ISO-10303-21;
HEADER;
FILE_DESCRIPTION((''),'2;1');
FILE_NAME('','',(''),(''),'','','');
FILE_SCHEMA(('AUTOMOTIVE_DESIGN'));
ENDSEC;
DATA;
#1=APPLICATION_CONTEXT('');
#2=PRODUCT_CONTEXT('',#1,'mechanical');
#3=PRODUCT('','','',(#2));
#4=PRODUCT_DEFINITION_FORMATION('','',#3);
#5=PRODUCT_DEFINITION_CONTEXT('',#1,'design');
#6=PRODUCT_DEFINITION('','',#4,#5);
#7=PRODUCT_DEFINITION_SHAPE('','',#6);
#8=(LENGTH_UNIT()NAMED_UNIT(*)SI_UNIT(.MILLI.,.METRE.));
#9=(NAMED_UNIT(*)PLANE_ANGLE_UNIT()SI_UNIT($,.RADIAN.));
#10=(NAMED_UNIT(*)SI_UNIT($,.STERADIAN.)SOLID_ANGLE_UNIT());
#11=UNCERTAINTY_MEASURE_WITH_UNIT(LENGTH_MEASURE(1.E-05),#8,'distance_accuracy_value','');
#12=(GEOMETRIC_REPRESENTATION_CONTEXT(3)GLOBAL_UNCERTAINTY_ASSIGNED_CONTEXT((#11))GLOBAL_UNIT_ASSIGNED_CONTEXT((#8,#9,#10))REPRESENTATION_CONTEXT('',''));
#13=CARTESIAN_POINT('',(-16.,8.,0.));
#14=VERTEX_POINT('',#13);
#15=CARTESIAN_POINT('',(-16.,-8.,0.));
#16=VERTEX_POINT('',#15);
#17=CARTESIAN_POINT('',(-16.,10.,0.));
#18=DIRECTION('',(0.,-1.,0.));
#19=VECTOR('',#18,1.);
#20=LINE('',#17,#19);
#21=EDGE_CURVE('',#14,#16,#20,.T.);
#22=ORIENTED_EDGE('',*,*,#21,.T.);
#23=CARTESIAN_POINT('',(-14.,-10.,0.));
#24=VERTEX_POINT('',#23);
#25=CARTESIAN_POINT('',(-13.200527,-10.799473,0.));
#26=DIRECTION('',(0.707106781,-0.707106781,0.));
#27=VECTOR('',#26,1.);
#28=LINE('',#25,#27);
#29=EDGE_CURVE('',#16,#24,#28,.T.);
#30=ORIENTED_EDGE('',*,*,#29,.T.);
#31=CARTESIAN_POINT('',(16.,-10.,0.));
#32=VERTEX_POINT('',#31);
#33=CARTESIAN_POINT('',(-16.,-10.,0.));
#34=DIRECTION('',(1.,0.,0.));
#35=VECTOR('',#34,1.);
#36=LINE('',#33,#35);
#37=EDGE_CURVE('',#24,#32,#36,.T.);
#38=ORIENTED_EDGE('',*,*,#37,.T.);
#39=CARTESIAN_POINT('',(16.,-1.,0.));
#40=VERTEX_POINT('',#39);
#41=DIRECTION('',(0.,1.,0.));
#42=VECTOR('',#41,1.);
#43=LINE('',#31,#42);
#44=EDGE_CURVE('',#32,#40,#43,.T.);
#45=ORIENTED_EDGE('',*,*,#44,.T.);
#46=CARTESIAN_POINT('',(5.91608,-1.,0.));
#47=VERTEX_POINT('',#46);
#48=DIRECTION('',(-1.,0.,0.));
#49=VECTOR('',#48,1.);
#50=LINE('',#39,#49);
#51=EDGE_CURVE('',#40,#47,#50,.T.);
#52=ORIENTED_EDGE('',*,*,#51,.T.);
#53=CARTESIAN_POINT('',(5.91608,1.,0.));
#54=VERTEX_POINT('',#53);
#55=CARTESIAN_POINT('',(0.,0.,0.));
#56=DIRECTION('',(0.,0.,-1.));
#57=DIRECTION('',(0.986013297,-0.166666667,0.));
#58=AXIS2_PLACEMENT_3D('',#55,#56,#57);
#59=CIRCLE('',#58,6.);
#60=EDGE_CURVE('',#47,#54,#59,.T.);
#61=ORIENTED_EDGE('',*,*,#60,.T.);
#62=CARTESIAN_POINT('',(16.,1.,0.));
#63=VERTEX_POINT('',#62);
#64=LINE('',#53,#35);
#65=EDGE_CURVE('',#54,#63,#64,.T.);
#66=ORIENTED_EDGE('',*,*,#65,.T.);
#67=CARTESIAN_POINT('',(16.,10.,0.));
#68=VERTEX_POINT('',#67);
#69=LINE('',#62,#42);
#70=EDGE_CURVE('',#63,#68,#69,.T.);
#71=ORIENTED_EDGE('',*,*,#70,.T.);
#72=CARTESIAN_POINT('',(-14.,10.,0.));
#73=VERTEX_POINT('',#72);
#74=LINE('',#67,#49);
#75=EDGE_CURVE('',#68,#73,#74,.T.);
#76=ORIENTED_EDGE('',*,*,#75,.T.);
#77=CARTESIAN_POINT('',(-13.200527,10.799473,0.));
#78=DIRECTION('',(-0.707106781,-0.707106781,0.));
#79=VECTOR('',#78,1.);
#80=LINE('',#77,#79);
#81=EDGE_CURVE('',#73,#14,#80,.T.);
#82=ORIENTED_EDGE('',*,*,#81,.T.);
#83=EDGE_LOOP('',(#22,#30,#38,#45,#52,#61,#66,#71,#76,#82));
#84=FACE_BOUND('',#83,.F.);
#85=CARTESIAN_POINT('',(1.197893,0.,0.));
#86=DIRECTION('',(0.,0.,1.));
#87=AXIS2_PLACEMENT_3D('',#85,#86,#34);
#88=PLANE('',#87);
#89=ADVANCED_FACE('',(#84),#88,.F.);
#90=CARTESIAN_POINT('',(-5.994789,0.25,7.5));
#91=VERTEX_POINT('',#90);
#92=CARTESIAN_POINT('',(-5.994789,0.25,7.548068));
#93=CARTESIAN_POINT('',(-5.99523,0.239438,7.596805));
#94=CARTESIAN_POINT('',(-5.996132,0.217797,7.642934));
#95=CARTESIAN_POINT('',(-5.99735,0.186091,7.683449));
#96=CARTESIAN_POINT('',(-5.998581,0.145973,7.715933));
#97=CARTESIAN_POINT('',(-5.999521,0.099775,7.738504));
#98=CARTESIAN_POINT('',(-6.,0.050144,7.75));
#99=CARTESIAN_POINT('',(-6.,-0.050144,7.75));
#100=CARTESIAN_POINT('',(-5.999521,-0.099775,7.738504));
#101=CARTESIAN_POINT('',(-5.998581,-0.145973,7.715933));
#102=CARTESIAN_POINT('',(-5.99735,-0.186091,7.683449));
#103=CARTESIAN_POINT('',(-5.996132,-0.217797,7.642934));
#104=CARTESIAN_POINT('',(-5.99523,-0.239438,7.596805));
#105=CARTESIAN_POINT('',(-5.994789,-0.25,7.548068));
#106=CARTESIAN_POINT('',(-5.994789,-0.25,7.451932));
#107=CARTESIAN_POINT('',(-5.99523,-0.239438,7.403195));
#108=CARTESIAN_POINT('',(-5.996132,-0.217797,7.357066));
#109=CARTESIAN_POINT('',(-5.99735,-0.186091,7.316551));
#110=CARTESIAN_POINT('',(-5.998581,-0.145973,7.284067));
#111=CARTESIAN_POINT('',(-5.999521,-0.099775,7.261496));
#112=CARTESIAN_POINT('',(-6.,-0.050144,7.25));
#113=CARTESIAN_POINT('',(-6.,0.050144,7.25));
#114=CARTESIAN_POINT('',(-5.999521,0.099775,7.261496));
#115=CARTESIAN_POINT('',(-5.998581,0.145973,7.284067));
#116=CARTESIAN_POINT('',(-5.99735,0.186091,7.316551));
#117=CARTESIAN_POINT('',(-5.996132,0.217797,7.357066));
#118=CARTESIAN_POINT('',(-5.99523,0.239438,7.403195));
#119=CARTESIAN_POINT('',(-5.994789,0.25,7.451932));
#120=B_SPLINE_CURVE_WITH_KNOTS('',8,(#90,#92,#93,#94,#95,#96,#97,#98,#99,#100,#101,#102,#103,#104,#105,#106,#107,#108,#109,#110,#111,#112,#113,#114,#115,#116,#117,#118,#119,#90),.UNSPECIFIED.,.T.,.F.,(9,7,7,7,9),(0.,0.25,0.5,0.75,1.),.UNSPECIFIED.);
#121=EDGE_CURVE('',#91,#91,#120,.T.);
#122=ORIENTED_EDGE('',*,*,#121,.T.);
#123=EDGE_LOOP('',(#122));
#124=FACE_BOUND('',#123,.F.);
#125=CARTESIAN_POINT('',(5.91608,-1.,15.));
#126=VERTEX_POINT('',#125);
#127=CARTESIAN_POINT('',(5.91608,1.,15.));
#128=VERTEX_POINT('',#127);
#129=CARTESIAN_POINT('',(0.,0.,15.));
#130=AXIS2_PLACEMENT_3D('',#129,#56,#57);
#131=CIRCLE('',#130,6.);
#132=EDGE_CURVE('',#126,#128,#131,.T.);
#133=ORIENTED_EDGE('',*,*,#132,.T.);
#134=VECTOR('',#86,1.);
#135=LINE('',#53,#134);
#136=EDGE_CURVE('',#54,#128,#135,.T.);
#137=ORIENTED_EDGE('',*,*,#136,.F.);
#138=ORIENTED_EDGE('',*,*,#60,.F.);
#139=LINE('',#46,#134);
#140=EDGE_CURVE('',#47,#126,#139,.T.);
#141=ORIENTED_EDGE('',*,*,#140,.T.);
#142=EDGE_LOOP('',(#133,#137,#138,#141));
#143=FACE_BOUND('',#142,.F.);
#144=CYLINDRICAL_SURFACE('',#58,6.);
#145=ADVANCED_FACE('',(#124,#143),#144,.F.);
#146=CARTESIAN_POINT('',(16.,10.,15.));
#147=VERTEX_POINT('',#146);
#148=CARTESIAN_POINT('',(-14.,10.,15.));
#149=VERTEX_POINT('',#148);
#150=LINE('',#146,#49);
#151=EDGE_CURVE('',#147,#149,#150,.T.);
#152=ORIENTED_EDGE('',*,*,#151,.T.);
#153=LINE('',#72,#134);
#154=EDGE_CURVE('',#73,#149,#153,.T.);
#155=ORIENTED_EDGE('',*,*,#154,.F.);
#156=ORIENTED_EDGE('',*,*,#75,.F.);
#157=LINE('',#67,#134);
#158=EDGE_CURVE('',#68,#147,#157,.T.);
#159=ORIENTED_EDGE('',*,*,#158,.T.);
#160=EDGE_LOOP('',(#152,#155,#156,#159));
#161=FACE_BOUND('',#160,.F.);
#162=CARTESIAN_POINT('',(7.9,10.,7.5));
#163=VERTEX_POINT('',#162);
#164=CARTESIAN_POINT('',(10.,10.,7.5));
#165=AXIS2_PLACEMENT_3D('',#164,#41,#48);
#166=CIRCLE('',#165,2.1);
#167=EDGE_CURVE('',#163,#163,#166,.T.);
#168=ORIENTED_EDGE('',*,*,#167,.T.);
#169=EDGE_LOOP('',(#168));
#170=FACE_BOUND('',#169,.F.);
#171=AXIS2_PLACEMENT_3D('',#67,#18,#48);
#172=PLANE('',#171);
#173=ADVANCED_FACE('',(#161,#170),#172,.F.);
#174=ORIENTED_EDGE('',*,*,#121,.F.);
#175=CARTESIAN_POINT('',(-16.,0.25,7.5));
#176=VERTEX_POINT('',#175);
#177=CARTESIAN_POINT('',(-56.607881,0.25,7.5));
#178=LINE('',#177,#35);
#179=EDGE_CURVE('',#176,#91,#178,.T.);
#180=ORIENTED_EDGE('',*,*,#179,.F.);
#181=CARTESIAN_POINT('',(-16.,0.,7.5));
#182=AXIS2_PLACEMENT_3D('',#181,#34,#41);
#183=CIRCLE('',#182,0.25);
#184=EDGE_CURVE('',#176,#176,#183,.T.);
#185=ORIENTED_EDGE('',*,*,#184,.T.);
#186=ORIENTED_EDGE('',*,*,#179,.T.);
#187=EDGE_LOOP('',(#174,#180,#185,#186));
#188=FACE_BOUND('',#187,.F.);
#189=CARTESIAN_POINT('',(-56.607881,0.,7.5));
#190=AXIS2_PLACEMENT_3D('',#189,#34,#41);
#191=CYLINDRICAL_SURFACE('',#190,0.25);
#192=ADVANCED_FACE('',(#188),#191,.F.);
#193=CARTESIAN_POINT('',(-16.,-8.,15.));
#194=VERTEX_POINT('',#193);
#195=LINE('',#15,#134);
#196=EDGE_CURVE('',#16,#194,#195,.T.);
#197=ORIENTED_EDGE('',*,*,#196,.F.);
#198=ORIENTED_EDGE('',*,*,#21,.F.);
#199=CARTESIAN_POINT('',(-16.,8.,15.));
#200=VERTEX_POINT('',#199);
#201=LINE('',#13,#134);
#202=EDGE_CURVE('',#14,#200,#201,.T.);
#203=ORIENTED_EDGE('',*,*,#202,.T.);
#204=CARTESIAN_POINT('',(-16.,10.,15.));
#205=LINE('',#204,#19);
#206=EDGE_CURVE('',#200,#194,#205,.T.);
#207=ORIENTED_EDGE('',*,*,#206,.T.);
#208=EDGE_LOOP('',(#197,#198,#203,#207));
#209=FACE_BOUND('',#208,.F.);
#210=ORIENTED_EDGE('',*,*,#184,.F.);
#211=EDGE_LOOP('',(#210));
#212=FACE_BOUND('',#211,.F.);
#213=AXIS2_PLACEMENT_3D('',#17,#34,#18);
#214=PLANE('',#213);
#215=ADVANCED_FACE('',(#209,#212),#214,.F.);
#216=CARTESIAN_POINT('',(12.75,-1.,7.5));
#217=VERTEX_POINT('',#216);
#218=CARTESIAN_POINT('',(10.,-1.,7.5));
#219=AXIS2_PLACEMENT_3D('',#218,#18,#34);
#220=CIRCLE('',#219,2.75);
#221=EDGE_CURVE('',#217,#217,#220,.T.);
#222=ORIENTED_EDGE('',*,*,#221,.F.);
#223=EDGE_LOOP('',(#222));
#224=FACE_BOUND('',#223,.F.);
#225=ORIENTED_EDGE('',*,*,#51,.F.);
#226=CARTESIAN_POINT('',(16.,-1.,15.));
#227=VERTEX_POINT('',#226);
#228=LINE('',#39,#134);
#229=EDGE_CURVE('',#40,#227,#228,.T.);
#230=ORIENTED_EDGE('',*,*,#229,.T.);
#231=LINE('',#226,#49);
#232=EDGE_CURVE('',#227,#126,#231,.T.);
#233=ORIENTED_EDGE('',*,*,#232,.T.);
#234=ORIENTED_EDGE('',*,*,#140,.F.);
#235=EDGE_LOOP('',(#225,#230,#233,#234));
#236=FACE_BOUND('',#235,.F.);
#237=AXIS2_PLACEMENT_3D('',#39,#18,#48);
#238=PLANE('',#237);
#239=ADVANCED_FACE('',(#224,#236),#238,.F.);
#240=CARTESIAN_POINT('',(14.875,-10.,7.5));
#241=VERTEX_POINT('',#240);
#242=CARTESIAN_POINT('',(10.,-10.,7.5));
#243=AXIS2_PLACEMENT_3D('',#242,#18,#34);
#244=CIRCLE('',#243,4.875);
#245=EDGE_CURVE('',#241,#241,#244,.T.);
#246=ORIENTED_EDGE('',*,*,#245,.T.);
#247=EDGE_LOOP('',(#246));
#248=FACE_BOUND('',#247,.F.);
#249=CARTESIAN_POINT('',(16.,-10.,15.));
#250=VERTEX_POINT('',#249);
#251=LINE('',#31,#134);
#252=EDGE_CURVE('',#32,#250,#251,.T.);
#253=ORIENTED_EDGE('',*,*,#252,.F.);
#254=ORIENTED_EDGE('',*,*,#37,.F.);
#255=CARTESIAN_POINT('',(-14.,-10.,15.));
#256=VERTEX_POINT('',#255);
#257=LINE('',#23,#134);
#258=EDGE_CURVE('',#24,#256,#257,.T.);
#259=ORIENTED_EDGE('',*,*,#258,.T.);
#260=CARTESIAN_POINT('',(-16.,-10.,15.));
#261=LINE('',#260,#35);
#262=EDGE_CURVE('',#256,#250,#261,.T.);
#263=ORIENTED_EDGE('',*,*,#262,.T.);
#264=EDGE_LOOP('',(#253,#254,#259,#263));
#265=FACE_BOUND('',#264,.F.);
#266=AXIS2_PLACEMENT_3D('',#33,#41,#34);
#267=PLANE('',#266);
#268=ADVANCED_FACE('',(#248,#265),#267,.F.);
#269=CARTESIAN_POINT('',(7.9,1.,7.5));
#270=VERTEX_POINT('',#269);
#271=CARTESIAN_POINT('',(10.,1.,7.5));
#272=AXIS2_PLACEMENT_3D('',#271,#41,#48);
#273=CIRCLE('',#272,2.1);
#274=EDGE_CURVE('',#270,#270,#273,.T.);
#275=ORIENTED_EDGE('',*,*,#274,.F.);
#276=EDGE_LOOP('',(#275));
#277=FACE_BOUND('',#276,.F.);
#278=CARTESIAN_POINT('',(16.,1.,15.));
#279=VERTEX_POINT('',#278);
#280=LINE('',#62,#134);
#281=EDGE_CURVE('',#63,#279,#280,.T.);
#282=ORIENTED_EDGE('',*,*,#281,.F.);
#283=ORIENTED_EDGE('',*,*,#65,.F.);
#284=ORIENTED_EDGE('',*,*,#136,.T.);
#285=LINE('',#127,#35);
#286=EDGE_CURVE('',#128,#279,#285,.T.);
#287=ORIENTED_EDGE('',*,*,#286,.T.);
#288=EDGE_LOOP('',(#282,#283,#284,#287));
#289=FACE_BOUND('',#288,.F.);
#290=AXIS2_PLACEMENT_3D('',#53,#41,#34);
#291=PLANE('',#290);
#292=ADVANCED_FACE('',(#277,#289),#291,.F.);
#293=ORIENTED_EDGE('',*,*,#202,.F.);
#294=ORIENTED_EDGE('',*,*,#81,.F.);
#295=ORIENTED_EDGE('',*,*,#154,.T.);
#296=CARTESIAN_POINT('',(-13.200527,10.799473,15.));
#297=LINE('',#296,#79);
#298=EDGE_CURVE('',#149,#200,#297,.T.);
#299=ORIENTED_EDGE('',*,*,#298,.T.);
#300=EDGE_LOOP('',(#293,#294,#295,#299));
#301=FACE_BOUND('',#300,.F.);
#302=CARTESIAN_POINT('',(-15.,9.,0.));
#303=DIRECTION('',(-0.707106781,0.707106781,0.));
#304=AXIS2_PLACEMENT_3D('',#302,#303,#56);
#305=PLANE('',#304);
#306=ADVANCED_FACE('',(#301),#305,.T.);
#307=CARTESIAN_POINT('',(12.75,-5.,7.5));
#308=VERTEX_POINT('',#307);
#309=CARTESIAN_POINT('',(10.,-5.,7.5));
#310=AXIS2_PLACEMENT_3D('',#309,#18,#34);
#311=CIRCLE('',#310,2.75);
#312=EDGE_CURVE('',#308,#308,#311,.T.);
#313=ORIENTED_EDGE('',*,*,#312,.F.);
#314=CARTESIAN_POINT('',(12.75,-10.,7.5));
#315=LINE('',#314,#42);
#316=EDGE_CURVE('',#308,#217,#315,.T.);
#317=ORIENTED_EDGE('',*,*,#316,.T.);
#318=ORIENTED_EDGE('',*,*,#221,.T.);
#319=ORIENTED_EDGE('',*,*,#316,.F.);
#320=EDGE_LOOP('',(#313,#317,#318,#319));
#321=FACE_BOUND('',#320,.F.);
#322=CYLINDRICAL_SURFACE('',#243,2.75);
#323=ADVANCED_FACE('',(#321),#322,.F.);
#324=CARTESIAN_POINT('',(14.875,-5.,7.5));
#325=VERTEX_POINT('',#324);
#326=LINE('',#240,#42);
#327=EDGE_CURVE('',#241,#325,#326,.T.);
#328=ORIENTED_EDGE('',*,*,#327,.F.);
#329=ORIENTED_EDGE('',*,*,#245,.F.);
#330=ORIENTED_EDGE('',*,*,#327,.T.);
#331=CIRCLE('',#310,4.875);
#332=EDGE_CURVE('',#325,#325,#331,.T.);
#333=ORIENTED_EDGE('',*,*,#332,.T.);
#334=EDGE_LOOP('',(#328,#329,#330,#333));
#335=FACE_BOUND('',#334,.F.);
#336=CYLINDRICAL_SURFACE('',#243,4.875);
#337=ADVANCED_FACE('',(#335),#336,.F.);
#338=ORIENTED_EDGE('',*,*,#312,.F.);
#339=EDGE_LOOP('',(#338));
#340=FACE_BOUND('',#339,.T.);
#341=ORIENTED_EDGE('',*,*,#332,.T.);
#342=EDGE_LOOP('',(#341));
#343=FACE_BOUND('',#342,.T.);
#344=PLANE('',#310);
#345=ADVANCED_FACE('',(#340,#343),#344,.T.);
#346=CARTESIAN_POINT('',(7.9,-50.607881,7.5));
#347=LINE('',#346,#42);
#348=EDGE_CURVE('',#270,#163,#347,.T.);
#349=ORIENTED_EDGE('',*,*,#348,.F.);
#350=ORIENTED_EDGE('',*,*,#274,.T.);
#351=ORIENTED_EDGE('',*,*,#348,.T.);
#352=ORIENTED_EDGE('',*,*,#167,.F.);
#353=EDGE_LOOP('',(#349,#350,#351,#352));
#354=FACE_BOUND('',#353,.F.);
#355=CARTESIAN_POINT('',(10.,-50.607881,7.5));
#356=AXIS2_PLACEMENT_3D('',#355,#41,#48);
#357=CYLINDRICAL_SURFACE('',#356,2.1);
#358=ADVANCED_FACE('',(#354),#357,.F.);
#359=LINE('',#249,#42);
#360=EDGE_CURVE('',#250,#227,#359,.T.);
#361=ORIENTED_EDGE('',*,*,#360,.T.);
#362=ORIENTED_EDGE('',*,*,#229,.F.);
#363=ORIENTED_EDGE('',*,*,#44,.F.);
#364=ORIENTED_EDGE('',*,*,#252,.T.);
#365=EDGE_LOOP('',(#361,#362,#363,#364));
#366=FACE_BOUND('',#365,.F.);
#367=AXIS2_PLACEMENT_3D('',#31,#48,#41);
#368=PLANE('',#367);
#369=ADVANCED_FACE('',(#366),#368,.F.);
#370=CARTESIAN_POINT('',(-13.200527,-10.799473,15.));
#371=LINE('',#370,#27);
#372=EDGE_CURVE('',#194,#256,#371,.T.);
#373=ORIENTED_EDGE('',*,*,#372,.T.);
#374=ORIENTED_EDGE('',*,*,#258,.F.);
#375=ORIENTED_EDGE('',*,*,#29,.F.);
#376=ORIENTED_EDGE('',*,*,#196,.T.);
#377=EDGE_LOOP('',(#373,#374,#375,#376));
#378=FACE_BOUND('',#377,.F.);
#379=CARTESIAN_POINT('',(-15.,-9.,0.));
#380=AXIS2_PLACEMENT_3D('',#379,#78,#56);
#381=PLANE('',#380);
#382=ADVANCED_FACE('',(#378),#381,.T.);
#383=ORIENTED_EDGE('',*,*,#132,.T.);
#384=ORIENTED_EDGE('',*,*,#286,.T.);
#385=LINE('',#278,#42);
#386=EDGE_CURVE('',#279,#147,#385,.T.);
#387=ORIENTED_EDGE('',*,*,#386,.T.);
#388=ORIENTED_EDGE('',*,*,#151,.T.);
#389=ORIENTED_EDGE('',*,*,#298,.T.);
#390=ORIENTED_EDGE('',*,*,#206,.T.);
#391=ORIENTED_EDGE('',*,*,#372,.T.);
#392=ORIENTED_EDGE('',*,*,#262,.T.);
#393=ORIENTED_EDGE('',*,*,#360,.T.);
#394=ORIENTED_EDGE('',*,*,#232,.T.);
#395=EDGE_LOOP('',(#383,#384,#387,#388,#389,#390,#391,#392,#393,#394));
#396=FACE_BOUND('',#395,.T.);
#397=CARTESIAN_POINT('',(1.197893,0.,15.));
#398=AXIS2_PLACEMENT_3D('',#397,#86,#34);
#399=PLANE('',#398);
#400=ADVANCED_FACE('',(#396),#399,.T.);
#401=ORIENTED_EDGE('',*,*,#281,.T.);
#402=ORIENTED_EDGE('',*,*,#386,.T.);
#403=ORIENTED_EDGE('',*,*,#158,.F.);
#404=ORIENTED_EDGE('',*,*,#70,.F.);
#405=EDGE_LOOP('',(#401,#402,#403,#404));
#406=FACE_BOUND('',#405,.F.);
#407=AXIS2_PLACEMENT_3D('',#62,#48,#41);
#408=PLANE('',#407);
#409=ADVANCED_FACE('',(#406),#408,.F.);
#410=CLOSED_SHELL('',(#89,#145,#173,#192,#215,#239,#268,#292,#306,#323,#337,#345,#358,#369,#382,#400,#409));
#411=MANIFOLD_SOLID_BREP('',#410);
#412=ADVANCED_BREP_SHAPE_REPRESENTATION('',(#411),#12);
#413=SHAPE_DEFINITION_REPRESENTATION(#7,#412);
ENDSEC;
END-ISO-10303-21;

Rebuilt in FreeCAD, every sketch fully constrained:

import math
import FreeCAD as App
import Part
import Sketcher


def edges_at(feature, points):
    """Names of the edges that pass closest to the given points."""
    edges = feature.Shape.Edges
    near = lambda p: min(range(len(edges)), key=lambda i: edges[i].distToShape(Part.Vertex(*p))[0])
    return sorted({f"Edge{near(p) + 1}" for p in points})

doc = App.newDocument("Part")
body = doc.addObject("PartDesign::Body", "Body")

# Sketch on XY plane
sketch1 = body.newObject("Sketcher::SketchObject", "Sketch")
sketch1.AttachmentSupport = (doc.getObject("XY_Plane"), [""])
sketch1.MapMode = "FlatFace"
sketch1.addGeometry([
    Part.ArcOfCircle(Part.Circle(App.Vector(0, 0, 0), App.Vector(0, 0, 1), 6), math.radians(10), math.radians(350)),  # 0
    Part.LineSegment(App.Vector(5.9, 1, 0), App.Vector(16, 1, 0)),  # 1
    Part.LineSegment(App.Vector(16, 1, 0), App.Vector(16, 10, 0)),  # 2
    Part.LineSegment(App.Vector(16, 10, 0), App.Vector(-16, 10, 0)),  # 3
    Part.LineSegment(App.Vector(-16, 10, 0), App.Vector(-16, -10, 0)),  # 4
    Part.LineSegment(App.Vector(-16, -10, 0), App.Vector(16, -10, 0)),  # 5
    Part.LineSegment(App.Vector(16, -10, 0), App.Vector(16, -1, 0)),  # 6
    Part.LineSegment(App.Vector(16, -1, 0), App.Vector(5.9, -1, 0)),  # 7
], False)
sketch1.addConstraint([
    Sketcher.Constraint("Coincident", 0, 1, 1, 1),
    Sketcher.Constraint("Coincident", 1, 2, 2, 1),
    Sketcher.Constraint("Coincident", 2, 2, 3, 1),
    Sketcher.Constraint("Coincident", 3, 2, 4, 1),
    Sketcher.Constraint("Coincident", 4, 2, 5, 1),
    Sketcher.Constraint("Coincident", 5, 2, 6, 1),
    Sketcher.Constraint("Coincident", 6, 2, 7, 1),
    Sketcher.Constraint("Coincident", 7, 2, 0, 2),
    Sketcher.Constraint("Horizontal", 1),
    Sketcher.Constraint("Vertical", 2),
    Sketcher.Constraint("Horizontal", 3),
    Sketcher.Constraint("Vertical", 4),
    Sketcher.Constraint("Horizontal", 5),
    Sketcher.Constraint("Vertical", 6),
    Sketcher.Constraint("Horizontal", 7),
    Sketcher.Constraint("Coincident", 0, 3, -1, 1),
    Sketcher.Constraint("Symmetric", 2, 2, 4, 2, -1, 1),
    Sketcher.Constraint("Symmetric", 1, 2, 6, 2, -1),
    Sketcher.Constraint("Radius", 0, 6.0),
    Sketcher.Constraint("DistanceX", 3, 2, 3, 1, 32.0),
    Sketcher.Constraint("DistanceY", 2, 1, 2, 2, 9.0),
    Sketcher.Constraint("DistanceY", 4, 2, 4, 1, 20.0),
])
pad1 = body.newObject("PartDesign::Pad", "Pad")
pad1.Profile = sketch1
pad1.Length = 15
doc.recompute()

chamfer = body.newObject("PartDesign::Chamfer", "Chamfer")
chamfer.Base = (pad1, edges_at(pad1, [(-16, 10, 7.5), (-16, -10, 7.5)]))
chamfer.ChamferType = "Two distances"
chamfer.Size = 2
chamfer.Size2 = 2

# Sketch on XZ plane
sketch2 = body.newObject("Sketcher::SketchObject", "Sketch001")
sketch2.AttachmentSupport = (doc.getObject("XZ_Plane"), [""])
sketch2.MapMode = "FlatFace"
sketch2.AttachmentOffset = App.Placement(App.Vector(0, 0, 10), App.Rotation())
sketch2.addGeometry(Part.Circle(App.Vector(10, 7.5, 0), App.Vector(0, 0, 1), 2.8), False)
sketch2.addConstraint([
    Sketcher.Constraint("Diameter", 0, 5.5),
    Sketcher.Constraint("DistanceX", -1, 1, 0, 3, 10.0),
    Sketcher.Constraint("DistanceY", -1, 1, 0, 3, 7.5),
])
pocket1 = body.newObject("PartDesign::Pocket", "Pocket")
pocket1.Profile = sketch2
pocket1.Length = 10

# Sketch on XZ plane
sketch3 = body.newObject("Sketcher::SketchObject", "Sketch002")
sketch3.AttachmentSupport = (doc.getObject("XZ_Plane"), [""])
sketch3.MapMode = "FlatFace"
sketch3.AttachmentOffset = App.Placement(App.Vector(0, 0, 10), App.Rotation())
sketch3.addGeometry(Part.Circle(App.Vector(10, 7.5, 0), App.Vector(0, 0, 1), 2.1), False)
sketch3.addConstraint([
    Sketcher.Constraint("Diameter", 0, 4.2),
    Sketcher.Constraint("DistanceX", -1, 1, 0, 3, 10.0),
    Sketcher.Constraint("DistanceY", -1, 1, 0, 3, 7.5),
])
doc.recompute()
hole = body.newObject("PartDesign::Hole", "Hole")
hole.Profile = sketch3
hole.ThreadType = "None"
hole.Diameter = 4.2
hole.DepthType = "ThroughAll"

# Sketch on XZ plane
sketch4 = body.newObject("Sketcher::SketchObject", "Sketch003")
sketch4.AttachmentSupport = (doc.getObject("XZ_Plane"), [""])
sketch4.MapMode = "FlatFace"
sketch4.AttachmentOffset = App.Placement(App.Vector(0, 0, 10), App.Rotation())
sketch4.addGeometry([
    Part.Circle(App.Vector(10, 7.5, 0), App.Vector(0, 0, 1), 4.9),
    Part.Circle(App.Vector(10, 7.5, 0), App.Vector(0, 0, 1), 2.8),
], False)
sketch4.addConstraint([
    Sketcher.Constraint("Coincident", 1, 3, 0, 3),
    Sketcher.Constraint("Diameter", 1, 5.5),
    Sketcher.Constraint("Diameter", 0, 9.75),
    Sketcher.Constraint("DistanceX", -1, 1, 0, 3, 10.0),
    Sketcher.Constraint("DistanceY", -1, 1, 0, 3, 7.5),
])
pocket2 = body.newObject("PartDesign::Pocket", "Pocket001")
pocket2.Profile = sketch4
pocket2.Length = 5

# Sketch on YZ plane
sketch5 = body.newObject("Sketcher::SketchObject", "Sketch004")
sketch5.AttachmentSupport = (doc.getObject("YZ_Plane"), [""])
sketch5.MapMode = "FlatFace"
sketch5.AttachmentOffset = App.Placement(App.Vector(0, 0, -16), App.Rotation())
sketch5.addGeometry(Part.Circle(App.Vector(0, 7.5, 0), App.Vector(0, 0, 1), 0.25), False)
sketch5.addConstraint([
    Sketcher.Constraint("PointOnObject", 0, 3, -2),
    Sketcher.Constraint("Diameter", 0, 0.5),
    Sketcher.Constraint("DistanceY", -1, 1, 0, 3, 7.5),
])
doc.recompute()
hole2 = body.newObject("PartDesign::Hole", "Hole001")
hole2.Profile = sketch5
hole2.ThreadType = "None"
hole2.Diameter = 0.5
hole2.DepthType = "ThroughAll"
hole2.Reversed = True

doc.recompute()
